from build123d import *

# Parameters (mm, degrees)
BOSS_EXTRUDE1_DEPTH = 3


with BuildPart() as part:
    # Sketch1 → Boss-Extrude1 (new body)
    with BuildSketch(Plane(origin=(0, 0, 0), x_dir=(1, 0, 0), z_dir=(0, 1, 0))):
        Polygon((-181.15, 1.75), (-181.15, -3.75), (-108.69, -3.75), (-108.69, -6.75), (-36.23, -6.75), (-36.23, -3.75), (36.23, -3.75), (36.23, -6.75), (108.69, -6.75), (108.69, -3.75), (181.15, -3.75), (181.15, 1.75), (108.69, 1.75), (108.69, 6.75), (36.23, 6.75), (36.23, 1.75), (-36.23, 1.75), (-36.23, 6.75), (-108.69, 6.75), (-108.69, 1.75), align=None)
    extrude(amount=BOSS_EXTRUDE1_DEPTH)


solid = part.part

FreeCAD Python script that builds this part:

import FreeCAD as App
import Part
import Sketcher

V = App.Vector


def add_polygon(sketch, points):
    """Adds a closed chain of lines whose ends are joined by coincident constraints."""
    first, n = sketch.GeometryCount, len(points)
    for a, b in zip(points, points[1:] + points[:1]):
        sketch.addGeometry(Part.LineSegment(App.Vector(*a, 0), App.Vector(*b, 0)), False)
    for i in range(n):
        sketch.addConstraint(Sketcher.Constraint("Coincident", first + i, 2, first + (i + 1) % n, 1))

doc = App.newDocument("Part")
body = doc.addObject("PartDesign::Body", "Body")

# Sketch on XZ plane
sketch1 = body.newObject("Sketcher::SketchObject", "Sketch")
sketch1.AttachmentSupport = (doc.getObject("XZ_Plane"), [""])
sketch1.MapMode = "FlatFace"
add_polygon(sketch1, [(-181.2, -1.8), (-181.2, 3.8), (-108.7, 3.8), (-108.7, 6.8), (-36.2, 6.8), (-36.2, 3.8), (36.2, 3.8), (36.2, 6.8), (108.7, 6.8), (108.7, 3.8), (181.2, 3.8), (181.2, -1.8), (108.7, -1.8), (108.7, -6.8), (36.2, -6.8), (36.2, -1.8), (-36.2, -1.8), (-36.2, -6.8), (-108.7, -6.8), (-108.7, -1.8)])  # lines 0-19
sketch1.addConstraint(Sketcher.Constraint("Vertical", 0))
sketch1.addConstraint(Sketcher.Constraint("Horizontal", 1))
sketch1.addConstraint(Sketcher.Constraint("Vertical", 2))
sketch1.addConstraint(Sketcher.Constraint("Horizontal", 3))
sketch1.addConstraint(Sketcher.Constraint("Vertical", 4))
sketch1.addConstraint(Sketcher.Constraint("Horizontal", 5))
sketch1.addConstraint(Sketcher.Constraint("Vertical", 6))
sketch1.addConstraint(Sketcher.Constraint("Horizontal", 7))
sketch1.addConstraint(Sketcher.Constraint("Vertical", 8))
sketch1.addConstraint(Sketcher.Constraint("Horizontal", 9))
sketch1.addConstraint(Sketcher.Constraint("Vertical", 10))
sketch1.addConstraint(Sketcher.Constraint("Horizontal", 11))
sketch1.addConstraint(Sketcher.Constraint("Vertical", 12))
sketch1.addConstraint(Sketcher.Constraint("Horizontal", 13))
sketch1.addConstraint(Sketcher.Constraint("Vertical", 14))
sketch1.addConstraint(Sketcher.Constraint("Horizontal", 15))
sketch1.addConstraint(Sketcher.Constraint("Vertical", 16))
sketch1.addConstraint(Sketcher.Constraint("Horizontal", 17))
sketch1.addConstraint(Sketcher.Constraint("Vertical", 18))
sketch1.addConstraint(Sketcher.Constraint("Horizontal", 19))
sketch1.addConstraint(Sketcher.Constraint("Symmetric", 2, 2, 12, 2, -1, 1))
sketch1.addConstraint(Sketcher.Constraint("Symmetric", 6, 2, 16, 2, -1, 1))
sketch1.addConstraint(Sketcher.Constraint("Symmetric", 3, 2, 6, 2, -2))
sketch1.addConstraint(Sketcher.Constraint("Symmetric", 1, 2, 8, 2, -2))
sketch1.addConstraint(Sketcher.Constraint("Symmetric", 11, 2, 18, 2, -2))
sketch1.addConstraint(Sketcher.Constraint("Horizontal", 1, 2, 4, 2))
sketch1.addConstraint(Sketcher.Constraint("Horizontal", 11, 2, 14, 2))
sketch1.addConstraint(Sketcher.Constraint("Vertical", 6, 2, 13, 2))
sketch1.addConstraint(Sketcher.Constraint("Equal", 1, 3))
sketch1.addConstraint(Sketcher.Constraint("Equal", 3, 5))
sketch1.addConstraint(Sketcher.Constraint("Equal", 7, 9))
sketch1.addConstraint(Sketcher.Constraint("DistanceY", 2, 1, 2, 2, 3.0))
sketch1.addConstraint(Sketcher.Constraint("DistanceY", 12, 2, 12, 1, 5.0))
sketch1.addConstraint(Sketcher.Constraint("DistanceY", 0, 1, 0, 2, 5.5))
sketch1.addConstraint(Sketcher.Constraint("DistanceX", 1, 1, 1, 2, 72.46))
pad1 = body.newObject("PartDesign::Pad", "Pad")
pad1.Profile = sketch1
pad1.Length = 3
pad1.Reversed = True

doc.recompute()
